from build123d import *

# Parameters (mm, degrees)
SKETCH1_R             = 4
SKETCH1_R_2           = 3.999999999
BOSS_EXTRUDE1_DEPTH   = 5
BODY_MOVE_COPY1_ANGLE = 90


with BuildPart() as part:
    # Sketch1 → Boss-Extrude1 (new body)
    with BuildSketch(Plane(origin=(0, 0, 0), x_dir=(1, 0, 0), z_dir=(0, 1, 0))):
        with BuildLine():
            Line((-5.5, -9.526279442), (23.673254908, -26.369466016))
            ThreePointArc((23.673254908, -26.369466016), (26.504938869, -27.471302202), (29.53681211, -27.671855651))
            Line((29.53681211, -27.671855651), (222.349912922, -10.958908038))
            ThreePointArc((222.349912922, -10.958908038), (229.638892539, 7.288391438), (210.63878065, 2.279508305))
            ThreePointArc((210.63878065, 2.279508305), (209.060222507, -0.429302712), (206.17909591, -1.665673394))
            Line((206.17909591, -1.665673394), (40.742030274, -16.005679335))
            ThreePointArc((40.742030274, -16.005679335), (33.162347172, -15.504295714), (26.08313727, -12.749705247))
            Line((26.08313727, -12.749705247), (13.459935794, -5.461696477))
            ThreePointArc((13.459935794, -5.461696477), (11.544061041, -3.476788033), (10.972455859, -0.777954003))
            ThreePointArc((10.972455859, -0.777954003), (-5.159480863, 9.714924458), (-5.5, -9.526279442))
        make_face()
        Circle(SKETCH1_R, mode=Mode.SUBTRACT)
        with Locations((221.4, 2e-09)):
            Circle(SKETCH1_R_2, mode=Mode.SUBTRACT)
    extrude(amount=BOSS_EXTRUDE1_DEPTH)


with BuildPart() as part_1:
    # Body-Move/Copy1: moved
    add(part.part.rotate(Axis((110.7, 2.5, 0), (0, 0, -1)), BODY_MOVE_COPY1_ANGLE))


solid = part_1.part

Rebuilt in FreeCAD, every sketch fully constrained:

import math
import FreeCAD as App
import Part
import Sketcher

V = App.Vector
Q = App.Units.Quantity

doc = App.newDocument("Part")
body = doc.addObject("PartDesign::Body", "Body")

# Sketch on XZ plane
sketch1 = doc.addObject("Sketcher::SketchObject", "Sketch")
body.addObject(sketch1)
sketch1.AttachmentSupport = (doc.XZ_Plane, [""])
sketch1.MapMode = "FlatFace"
sketch1.addGeometry([
    Part.LineSegment(V(-5.5, 9.5, 0), V(23.7, 26.4, 0)),  # 0
    Part.ArcOfCircle(Part.Circle(V(28.7, 17.7, 0), V(0, 0, 1), 10), math.radians(85), math.radians(120)),  # 1
    Part.LineSegment(V(29.5, 27.7, 0), V(222.3, 11, 0)),  # 2
    Part.ArcOfCircle(Part.Circle(V(221.4, 0, 0), V(0, 0, 1), 11), math.radians(-168), math.radians(85)),  # 3
    Part.ArcOfCircle(Part.Circle(V(205.7, -3.3, 0), V(0, 0, 1), 5), math.radians(12), math.radians(85)),  # 4
    Part.LineSegment(V(206.2, 1.7, 0), V(40.7, 16, 0)),  # 5
    Part.ArcOfCircle(Part.Circle(V(38.6, -8.9, 0), V(0, 0, 1), 25), math.radians(85), math.radians(120)),  # 6
    Part.LineSegment(V(26.1, 12.7, 0), V(13.5, 5.5, 0)),  # 7
    Part.ArcOfCircle(Part.Circle(V(16, 1.1, 0), V(0, 0, 1), 5), math.radians(120), math.radians(184)),  # 8
    Part.ArcOfCircle(Part.Circle(V(0, 0, 0), V(0, 0, 1), 11), math.radians(120), math.radians(364)),  # 9
    Part.Circle(V(0, 0, 0), V(0, 0, 1), 4),  # 10
    Part.Circle(V(221.4, 0, 0), V(0, 0, 1), 4),  # 11
], False)
sketch1.addConstraint([
    Sketcher.Constraint("Tangent", 0, 2, 1, 2),
    Sketcher.Constraint("Tangent", 1, 1, 2, 1),
    Sketcher.Constraint("Tangent", 2, 2, 3, 2),
    Sketcher.Constraint("Tangent", 3, 1, 4, 1),
    Sketcher.Constraint("Tangent", 4, 2, 5, 1),
    Sketcher.Constraint("Tangent", 5, 2, 6, 1),
    Sketcher.Constraint("Tangent", 6, 2, 7, 1),
    Sketcher.Constraint("Tangent", 7, 2, 8, 1),
    Sketcher.Constraint("Tangent", 8, 2, 9, 2),
    Sketcher.Constraint("Tangent", 9, 1, 0, 1),
    Sketcher.Constraint("Coincident", 9, 3, -1, 1),
    Sketcher.Constraint("Coincident", 10, 3, -1, 1),
    Sketcher.Constraint("Coincident", 11, 3, 3, 3),
    Sketcher.Constraint("Equal", 4, 8),
    Sketcher.Constraint("Equal", 3, 9),
    Sketcher.Constraint("Equal", 10, 11),
    Sketcher.Constraint("PointOnObject", 3, 3, -1),
    Sketcher.Constraint("Parallel", 2, 5),
    Sketcher.Constraint("Parallel", 0, 7),
    Sketcher.Constraint("Diameter", 10, Q("8 mm")),
    Sketcher.Constraint("Radius", 1, Q("10 mm")),
    Sketcher.Constraint("Radius", 3, Q("11 mm")),
    Sketcher.Constraint("Radius", 4, Q("5 mm")),
    Sketcher.Constraint("Radius", 6, Q("25 mm")),
    Sketcher.Constraint("Angle", 0, Q("30 deg")),
    Sketcher.Constraint("DistanceX", -1, 1, 3, 3, Q("221.4 mm")),
    Sketcher.Constraint("DistanceX", 8, 3, 6, 3, Q("22.623201 mm")),
    Sketcher.Constraint("DistanceX", 1, 1, 2, 2, Q("192.813101 mm")),
    Sketcher.Constraint("DistanceY", 4, 3, -1, 1, Q("3.315648 mm")),
])
pad1 = doc.addObject("PartDesign::Pad", "Pad")
body.addObject(pad1)
pad1.Profile = sketch1
pad1.Length = 5
pad1.Reversed = True
body2 = doc.addObject("PartDesign::Body", "Body001")
doc.recompute()

body.Placement = App.Placement(V(108.2, 113.2, 0), App.Rotation(V(0, 0, -1), 90))
boolean = doc.addObject("PartDesign::Boolean", "Boolean")
body2.addObject(boolean)
boolean.Type = "Fuse"
boolean.addObjects([body])

doc.recompute()
